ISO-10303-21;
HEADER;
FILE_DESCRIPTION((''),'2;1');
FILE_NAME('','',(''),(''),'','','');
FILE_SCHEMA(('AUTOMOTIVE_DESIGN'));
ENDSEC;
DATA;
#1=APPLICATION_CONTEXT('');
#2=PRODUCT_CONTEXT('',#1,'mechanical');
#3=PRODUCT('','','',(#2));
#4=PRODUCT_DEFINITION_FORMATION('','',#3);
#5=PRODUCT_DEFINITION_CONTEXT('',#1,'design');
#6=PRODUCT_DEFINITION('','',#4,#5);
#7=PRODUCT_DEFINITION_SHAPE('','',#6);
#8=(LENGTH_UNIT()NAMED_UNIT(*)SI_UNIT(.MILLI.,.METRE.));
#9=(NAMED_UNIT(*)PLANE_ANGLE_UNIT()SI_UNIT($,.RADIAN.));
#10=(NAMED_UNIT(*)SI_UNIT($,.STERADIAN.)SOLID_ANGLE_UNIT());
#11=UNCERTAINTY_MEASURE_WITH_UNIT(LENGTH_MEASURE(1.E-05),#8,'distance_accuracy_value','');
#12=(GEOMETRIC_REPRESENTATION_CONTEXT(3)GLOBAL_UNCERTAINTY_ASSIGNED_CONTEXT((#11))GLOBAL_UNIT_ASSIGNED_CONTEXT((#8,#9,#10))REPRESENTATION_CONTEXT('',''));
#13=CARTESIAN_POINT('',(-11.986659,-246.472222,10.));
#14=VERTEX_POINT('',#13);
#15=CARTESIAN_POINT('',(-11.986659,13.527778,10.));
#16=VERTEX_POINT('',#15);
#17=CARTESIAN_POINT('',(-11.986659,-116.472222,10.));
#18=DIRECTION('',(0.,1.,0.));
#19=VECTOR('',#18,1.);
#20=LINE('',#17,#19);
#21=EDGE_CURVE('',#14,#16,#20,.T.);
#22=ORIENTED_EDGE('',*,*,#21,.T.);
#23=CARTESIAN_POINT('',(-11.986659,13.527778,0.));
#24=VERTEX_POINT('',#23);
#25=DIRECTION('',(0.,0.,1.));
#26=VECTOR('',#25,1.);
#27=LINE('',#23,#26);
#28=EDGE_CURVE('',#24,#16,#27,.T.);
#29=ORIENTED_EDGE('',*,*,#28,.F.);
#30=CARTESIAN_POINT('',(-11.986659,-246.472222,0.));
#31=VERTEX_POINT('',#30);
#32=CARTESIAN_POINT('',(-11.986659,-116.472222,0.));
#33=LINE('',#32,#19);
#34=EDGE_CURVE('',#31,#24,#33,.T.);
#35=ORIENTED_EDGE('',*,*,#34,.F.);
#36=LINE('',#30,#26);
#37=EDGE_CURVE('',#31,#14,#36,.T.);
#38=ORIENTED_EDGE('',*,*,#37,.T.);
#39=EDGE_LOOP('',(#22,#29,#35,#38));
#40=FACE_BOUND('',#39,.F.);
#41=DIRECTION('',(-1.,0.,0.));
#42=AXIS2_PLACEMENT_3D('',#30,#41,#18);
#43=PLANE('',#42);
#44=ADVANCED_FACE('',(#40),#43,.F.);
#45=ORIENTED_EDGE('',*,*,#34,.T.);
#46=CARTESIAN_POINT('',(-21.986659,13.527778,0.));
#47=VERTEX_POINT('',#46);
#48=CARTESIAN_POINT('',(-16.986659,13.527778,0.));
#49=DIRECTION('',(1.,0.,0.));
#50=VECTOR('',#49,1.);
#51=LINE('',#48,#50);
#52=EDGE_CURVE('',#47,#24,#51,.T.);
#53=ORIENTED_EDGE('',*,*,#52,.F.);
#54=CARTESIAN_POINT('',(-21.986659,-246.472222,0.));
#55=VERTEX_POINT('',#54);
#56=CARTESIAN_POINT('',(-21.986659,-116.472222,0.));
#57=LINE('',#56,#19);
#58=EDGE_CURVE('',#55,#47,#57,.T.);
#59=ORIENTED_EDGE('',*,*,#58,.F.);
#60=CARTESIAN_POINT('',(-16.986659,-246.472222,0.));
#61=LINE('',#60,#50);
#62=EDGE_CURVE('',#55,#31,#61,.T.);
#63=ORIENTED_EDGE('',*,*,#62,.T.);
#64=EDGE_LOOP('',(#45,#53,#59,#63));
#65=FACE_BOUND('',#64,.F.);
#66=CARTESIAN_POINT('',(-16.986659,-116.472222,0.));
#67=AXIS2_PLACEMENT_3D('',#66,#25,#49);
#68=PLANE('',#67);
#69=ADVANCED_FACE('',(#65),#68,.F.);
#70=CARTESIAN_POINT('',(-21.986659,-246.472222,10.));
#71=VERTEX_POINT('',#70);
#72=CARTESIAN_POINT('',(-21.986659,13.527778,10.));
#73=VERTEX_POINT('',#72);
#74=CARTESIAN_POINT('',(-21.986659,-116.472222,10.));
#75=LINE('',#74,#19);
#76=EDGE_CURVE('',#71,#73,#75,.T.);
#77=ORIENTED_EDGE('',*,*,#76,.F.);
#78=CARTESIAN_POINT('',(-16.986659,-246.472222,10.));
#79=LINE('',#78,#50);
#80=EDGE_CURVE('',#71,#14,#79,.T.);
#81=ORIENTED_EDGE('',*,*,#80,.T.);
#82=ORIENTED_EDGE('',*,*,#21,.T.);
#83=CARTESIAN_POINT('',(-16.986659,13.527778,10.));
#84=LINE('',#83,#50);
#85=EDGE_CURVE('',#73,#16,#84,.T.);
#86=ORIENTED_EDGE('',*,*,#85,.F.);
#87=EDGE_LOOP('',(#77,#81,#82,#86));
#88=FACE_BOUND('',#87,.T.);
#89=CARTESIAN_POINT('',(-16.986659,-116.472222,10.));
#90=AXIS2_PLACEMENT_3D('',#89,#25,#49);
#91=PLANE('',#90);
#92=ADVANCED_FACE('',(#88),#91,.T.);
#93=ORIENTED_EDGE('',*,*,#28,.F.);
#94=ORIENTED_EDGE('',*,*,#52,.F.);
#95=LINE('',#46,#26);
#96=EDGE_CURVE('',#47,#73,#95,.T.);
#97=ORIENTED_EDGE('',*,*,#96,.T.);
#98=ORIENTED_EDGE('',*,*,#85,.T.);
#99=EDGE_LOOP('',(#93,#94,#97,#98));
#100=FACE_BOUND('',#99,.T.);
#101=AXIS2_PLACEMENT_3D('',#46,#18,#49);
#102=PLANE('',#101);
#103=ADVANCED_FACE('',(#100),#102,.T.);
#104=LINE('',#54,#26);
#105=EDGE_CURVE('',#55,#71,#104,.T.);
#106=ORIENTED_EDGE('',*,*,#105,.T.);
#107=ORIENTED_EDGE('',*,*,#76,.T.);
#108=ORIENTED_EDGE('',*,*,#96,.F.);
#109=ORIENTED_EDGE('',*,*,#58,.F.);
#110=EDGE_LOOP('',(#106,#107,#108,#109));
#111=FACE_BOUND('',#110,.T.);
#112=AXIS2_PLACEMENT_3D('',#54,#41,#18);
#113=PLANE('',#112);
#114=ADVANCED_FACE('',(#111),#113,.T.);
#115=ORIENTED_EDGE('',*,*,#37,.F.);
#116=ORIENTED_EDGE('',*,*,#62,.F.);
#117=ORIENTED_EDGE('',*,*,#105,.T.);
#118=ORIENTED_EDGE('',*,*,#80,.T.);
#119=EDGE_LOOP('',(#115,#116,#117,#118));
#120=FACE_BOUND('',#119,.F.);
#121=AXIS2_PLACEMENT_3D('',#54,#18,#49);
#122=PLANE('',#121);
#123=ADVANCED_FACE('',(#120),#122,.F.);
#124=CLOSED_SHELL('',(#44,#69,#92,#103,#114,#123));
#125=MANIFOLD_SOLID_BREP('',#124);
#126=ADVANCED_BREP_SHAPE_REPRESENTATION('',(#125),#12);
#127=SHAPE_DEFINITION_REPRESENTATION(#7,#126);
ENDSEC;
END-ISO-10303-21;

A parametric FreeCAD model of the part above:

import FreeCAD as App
import Part
import Sketcher

V = App.Vector


def add_polygon(sketch, points):
    """Adds a closed chain of lines whose ends are joined by coincident constraints."""
    first, n = sketch.GeometryCount, len(points)
    for a, b in zip(points, points[1:] + points[:1]):
        sketch.addGeometry(Part.LineSegment(App.Vector(*a, 0), App.Vector(*b, 0)), False)
    for i in range(n):
        sketch.addConstraint(Sketcher.Constraint("Coincident", first + i, 2, first + (i + 1) % n, 1))

doc = App.newDocument("Part")
body = doc.addObject("PartDesign::Body", "Body")

sketch1 = body.newObject("Sketcher::SketchObject", "Sketch")
sketch1.AttachmentSupport = (doc.getObject("XY_Plane"), [""])
sketch1.MapMode = "FlatFace"
add_polygon(sketch1, [(-22, 14), (-22, -246), (-12, -246), (-12, 14)])
sketch1.addConstraint(Sketcher.Constraint("Vertical", 0))
sketch1.addConstraint(Sketcher.Constraint("Horizontal", 1))
sketch1.addConstraint(Sketcher.Constraint("Vertical", 2))
sketch1.addConstraint(Sketcher.Constraint("Horizontal", 3))
sketch1.addConstraint(Sketcher.Constraint("DistanceX", 1, 1, 1, 2, 10.0))
sketch1.addConstraint(Sketcher.Constraint("DistanceY", 0, 2, 0, 1, 260.0))
sketch1.addConstraint(Sketcher.Constraint("DistanceX", 0, 2, -1, 1, 21.986659))
sketch1.addConstraint(Sketcher.Constraint("DistanceY", 0, 2, -1, 1, 246.472222))
pad1 = body.newObject("PartDesign::Pad", "Pad")
pad1.Profile = sketch1
pad1.Length = 10

doc.recompute()
